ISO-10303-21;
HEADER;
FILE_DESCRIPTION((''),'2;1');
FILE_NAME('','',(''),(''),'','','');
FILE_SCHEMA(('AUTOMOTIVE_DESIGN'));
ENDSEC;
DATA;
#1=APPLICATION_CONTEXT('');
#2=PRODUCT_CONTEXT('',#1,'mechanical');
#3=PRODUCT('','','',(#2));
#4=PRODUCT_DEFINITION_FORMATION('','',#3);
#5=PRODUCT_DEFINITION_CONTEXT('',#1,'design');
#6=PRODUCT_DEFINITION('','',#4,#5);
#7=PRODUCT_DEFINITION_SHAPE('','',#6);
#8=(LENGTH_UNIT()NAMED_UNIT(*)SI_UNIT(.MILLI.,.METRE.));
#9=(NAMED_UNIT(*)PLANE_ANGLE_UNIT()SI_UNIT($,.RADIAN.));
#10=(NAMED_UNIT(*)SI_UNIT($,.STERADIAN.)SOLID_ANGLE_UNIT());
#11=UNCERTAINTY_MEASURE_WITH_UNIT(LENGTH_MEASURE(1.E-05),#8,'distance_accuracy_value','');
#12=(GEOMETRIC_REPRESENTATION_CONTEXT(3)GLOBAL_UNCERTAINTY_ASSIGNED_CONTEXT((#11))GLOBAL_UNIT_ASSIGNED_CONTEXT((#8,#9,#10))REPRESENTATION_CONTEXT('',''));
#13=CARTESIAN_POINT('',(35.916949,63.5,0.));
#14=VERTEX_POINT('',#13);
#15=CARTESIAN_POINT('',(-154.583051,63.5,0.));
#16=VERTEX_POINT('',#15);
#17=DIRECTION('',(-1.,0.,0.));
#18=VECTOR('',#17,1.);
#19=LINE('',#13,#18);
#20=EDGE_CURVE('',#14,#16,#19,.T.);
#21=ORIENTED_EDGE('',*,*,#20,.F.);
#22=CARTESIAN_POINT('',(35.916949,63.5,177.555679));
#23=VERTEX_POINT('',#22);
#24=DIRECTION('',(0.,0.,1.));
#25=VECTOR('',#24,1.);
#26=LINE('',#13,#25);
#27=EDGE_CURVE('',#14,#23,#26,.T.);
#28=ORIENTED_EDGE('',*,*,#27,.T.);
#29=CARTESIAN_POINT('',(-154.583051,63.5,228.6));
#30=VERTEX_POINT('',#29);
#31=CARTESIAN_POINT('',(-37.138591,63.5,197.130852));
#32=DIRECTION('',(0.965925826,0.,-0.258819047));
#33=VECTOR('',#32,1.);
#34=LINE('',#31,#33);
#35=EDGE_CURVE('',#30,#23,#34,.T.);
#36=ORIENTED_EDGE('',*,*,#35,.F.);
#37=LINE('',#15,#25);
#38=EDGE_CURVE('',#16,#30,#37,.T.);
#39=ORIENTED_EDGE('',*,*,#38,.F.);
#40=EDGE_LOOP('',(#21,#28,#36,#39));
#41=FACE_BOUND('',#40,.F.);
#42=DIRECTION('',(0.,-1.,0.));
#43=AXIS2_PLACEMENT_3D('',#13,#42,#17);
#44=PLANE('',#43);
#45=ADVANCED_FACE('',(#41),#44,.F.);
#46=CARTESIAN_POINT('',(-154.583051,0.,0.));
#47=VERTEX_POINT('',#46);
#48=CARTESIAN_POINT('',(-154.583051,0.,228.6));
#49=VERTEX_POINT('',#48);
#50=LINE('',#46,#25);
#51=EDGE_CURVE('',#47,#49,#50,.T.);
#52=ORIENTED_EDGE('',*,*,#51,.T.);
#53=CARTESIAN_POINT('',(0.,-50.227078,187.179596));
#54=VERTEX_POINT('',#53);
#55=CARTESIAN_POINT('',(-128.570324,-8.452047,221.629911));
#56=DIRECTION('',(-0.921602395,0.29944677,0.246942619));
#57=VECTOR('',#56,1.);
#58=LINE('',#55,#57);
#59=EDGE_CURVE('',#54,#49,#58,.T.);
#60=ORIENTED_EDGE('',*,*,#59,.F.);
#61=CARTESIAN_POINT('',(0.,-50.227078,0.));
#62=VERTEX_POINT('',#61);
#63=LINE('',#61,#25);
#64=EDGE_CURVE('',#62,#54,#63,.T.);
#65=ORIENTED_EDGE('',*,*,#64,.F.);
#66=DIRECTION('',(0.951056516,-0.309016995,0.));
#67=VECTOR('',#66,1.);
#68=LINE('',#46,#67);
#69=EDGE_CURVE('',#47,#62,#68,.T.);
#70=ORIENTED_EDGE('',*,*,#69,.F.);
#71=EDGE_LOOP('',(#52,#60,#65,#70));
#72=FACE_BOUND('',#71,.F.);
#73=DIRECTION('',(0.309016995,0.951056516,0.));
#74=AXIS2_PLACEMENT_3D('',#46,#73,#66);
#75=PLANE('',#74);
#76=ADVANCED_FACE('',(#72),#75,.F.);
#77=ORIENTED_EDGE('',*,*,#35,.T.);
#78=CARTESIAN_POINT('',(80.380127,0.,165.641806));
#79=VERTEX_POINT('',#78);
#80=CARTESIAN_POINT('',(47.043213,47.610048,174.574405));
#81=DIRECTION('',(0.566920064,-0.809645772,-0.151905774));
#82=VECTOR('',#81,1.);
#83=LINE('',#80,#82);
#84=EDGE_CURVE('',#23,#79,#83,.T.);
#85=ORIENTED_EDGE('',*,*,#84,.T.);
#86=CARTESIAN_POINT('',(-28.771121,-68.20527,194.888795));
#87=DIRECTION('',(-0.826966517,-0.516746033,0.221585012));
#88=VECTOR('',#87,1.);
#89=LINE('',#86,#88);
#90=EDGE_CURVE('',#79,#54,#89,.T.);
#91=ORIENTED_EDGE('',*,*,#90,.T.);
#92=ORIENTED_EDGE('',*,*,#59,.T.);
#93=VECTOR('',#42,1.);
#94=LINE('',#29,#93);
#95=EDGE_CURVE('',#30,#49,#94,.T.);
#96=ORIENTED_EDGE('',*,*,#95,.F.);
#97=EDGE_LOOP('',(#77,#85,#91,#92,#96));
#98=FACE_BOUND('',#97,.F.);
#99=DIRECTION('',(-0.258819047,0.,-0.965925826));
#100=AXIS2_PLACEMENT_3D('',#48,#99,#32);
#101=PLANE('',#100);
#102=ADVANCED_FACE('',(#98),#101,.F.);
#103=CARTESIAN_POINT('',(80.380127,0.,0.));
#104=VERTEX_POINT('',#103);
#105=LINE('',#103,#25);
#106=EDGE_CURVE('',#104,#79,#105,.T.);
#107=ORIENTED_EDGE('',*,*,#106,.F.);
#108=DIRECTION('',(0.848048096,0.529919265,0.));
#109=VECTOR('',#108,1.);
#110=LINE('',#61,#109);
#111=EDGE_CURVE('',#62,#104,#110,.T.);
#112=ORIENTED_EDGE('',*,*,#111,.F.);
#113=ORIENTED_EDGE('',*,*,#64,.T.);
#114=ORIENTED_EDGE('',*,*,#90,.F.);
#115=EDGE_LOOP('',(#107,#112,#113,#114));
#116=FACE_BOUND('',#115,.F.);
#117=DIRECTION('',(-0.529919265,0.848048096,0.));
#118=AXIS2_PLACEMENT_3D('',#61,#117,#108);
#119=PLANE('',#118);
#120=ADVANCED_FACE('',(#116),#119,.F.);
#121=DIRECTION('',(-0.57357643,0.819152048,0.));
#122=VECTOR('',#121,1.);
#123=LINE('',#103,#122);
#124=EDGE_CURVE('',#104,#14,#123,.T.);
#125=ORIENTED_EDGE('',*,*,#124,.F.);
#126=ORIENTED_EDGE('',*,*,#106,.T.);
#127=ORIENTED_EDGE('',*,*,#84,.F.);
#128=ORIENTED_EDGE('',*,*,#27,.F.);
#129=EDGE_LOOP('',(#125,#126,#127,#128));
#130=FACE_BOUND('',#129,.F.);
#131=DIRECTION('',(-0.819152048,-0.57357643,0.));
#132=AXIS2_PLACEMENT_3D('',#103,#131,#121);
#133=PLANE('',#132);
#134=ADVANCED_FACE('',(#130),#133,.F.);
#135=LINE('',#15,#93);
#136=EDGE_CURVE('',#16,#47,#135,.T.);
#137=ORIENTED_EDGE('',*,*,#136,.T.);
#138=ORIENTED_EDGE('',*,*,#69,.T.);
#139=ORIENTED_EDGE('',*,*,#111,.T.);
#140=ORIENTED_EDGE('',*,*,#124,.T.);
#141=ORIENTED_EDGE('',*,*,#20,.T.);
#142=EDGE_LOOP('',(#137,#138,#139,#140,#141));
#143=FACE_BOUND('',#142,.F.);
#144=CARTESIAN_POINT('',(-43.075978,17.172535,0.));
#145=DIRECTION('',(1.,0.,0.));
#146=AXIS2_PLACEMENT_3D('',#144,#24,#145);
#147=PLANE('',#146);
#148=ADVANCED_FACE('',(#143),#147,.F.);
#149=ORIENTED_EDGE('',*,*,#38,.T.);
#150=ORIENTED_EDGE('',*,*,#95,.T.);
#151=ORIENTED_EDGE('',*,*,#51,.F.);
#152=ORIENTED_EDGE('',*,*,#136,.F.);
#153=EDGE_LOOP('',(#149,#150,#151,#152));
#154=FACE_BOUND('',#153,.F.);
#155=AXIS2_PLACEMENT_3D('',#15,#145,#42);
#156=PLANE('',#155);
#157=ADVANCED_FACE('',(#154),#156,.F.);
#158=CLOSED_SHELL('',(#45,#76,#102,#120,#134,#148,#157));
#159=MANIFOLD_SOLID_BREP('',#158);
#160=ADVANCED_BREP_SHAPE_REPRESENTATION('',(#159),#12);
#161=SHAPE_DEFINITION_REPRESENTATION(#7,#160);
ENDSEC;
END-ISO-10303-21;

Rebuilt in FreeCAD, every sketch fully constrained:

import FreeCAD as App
import Part
import Sketcher
Q = App.Units.Quantity

doc = App.newDocument("Part")
params = doc.addObject("Spreadsheet::Sheet", "Params")
for row, (alias, value) in enumerate([
    ("sketch1_width", "7.5 in"),
    ("sketch1_height", "2.5 in"),
    ("pad1_length", "9 in"),
    ("pocket1_length", "9 in"),
], start=1):
    params.set(f"A{row}", alias)
    params.set(f"B{row}", "=" + value)
    params.setAlias(f"B{row}", alias)

body = doc.addObject("PartDesign::Body", "Body")

sketch1 = body.newObject("Sketcher::SketchObject", "Sketch")
sketch1.AttachmentSupport = (doc.getObject("XY_Plane"), [""])
sketch1.MapMode = "FlatFace"
sketch1.addGeometry([
    Part.LineSegment(App.Vector(80.380127, 0, 0), App.Vector(35.916949, 63.5, 0)),
    Part.LineSegment(App.Vector(35.916949, 63.5, 0), App.Vector(-154.583051, 63.5, 0)),
    Part.LineSegment(App.Vector(-154.583051, 63.5, 0), App.Vector(-154.583051, 0, 0)),
    Part.LineSegment(App.Vector(-154.583051, 0, 0), App.Vector(0, -50.227078, 0)),
    Part.LineSegment(App.Vector(0, -50.227078, 0), App.Vector(80.380127, 0, 0)),
], False)
sketch1.addConstraint([
    Sketcher.Constraint("Coincident", 0, 2, 1, 1),
    Sketcher.Constraint("Coincident", 1, 2, 2, 1),
    Sketcher.Constraint("Coincident", 2, 2, 3, 1),
    Sketcher.Constraint("Coincident", 3, 2, 4, 1),
    Sketcher.Constraint("Coincident", 4, 2, 0, 1),
    Sketcher.Constraint("Horizontal", 1),
    Sketcher.Constraint("Vertical", 2),
    Sketcher.Constraint("PointOnObject", 2, 2, -1),
    Sketcher.Constraint("PointOnObject", 3, 2, -2),
    Sketcher.Constraint("PointOnObject", 4, 2, -1),
    Sketcher.Constraint("DistanceX", 1, 2, 1, 1, Q("7.5 in")),
    Sketcher.Constraint("DistanceY", 2, 2, 2, 1, Q("2.5 in")),
    Sketcher.Constraint("Angle", 0, Q("125 deg")),
    Sketcher.Constraint("Angle", 3, Q("-18 deg")),
    Sketcher.Constraint("Angle", 4, Q("32 deg")),
])
sketch1.setExpression("Constraints[10]", "Params.sketch1_width")
sketch1.setExpression("Constraints[11]", "Params.sketch1_height")
pad1 = body.newObject("PartDesign::Pad", "Pad")
pad1.Profile = sketch1
pad1.setExpression("Length", "Params.pad1_length")

sketch2 = body.newObject("Sketcher::SketchObject", "Sketch001")
sketch2.AttachmentSupport = (doc.getObject("XZ_Plane"), [""])
sketch2.MapMode = "FlatFace"
sketch2.addGeometry([
    Part.LineSegment(App.Vector(-154.583051, 289.720148, 0), App.Vector(-154.583051, 228.6, 0)),
    Part.LineSegment(App.Vector(-154.583051, 228.6, 0), App.Vector(111.744714, 157.23769, 0)),
    Part.LineSegment(App.Vector(111.744714, 157.23769, 0), App.Vector(111.744714, 289.720148, 0)),
    Part.LineSegment(App.Vector(111.744714, 289.720148, 0), App.Vector(-154.583051, 289.720148, 0)),
], False)
sketch2.addConstraint([
    Sketcher.Constraint("Coincident", 0, 2, 1, 1),
    Sketcher.Constraint("Coincident", 1, 2, 2, 1),
    Sketcher.Constraint("Coincident", 2, 2, 3, 1),
    Sketcher.Constraint("Coincident", 3, 2, 0, 1),
    Sketcher.Constraint("Vertical", 0),
    Sketcher.Constraint("Vertical", 2),
    Sketcher.Constraint("Horizontal", 3),
    Sketcher.Constraint("DistanceY", -1, 1, 0, 2, Q("9 in")),
    Sketcher.Constraint("Angle", 1, Q("-15 deg")),
    Sketcher.Constraint("DistanceY", 2, 1, 2, 2, 132.482458),
    Sketcher.Constraint("Distance", 1, 275.722791),
    Sketcher.Constraint("DistanceX", 0, 2, -1, 1, 154.583051),
])
pocket1 = body.newObject("PartDesign::Pocket", "Pocket")
pocket1.Profile = sketch2
pocket1.setExpression("Length", "Params.pocket1_length")
pocket1.Midplane = True

doc.recompute()
